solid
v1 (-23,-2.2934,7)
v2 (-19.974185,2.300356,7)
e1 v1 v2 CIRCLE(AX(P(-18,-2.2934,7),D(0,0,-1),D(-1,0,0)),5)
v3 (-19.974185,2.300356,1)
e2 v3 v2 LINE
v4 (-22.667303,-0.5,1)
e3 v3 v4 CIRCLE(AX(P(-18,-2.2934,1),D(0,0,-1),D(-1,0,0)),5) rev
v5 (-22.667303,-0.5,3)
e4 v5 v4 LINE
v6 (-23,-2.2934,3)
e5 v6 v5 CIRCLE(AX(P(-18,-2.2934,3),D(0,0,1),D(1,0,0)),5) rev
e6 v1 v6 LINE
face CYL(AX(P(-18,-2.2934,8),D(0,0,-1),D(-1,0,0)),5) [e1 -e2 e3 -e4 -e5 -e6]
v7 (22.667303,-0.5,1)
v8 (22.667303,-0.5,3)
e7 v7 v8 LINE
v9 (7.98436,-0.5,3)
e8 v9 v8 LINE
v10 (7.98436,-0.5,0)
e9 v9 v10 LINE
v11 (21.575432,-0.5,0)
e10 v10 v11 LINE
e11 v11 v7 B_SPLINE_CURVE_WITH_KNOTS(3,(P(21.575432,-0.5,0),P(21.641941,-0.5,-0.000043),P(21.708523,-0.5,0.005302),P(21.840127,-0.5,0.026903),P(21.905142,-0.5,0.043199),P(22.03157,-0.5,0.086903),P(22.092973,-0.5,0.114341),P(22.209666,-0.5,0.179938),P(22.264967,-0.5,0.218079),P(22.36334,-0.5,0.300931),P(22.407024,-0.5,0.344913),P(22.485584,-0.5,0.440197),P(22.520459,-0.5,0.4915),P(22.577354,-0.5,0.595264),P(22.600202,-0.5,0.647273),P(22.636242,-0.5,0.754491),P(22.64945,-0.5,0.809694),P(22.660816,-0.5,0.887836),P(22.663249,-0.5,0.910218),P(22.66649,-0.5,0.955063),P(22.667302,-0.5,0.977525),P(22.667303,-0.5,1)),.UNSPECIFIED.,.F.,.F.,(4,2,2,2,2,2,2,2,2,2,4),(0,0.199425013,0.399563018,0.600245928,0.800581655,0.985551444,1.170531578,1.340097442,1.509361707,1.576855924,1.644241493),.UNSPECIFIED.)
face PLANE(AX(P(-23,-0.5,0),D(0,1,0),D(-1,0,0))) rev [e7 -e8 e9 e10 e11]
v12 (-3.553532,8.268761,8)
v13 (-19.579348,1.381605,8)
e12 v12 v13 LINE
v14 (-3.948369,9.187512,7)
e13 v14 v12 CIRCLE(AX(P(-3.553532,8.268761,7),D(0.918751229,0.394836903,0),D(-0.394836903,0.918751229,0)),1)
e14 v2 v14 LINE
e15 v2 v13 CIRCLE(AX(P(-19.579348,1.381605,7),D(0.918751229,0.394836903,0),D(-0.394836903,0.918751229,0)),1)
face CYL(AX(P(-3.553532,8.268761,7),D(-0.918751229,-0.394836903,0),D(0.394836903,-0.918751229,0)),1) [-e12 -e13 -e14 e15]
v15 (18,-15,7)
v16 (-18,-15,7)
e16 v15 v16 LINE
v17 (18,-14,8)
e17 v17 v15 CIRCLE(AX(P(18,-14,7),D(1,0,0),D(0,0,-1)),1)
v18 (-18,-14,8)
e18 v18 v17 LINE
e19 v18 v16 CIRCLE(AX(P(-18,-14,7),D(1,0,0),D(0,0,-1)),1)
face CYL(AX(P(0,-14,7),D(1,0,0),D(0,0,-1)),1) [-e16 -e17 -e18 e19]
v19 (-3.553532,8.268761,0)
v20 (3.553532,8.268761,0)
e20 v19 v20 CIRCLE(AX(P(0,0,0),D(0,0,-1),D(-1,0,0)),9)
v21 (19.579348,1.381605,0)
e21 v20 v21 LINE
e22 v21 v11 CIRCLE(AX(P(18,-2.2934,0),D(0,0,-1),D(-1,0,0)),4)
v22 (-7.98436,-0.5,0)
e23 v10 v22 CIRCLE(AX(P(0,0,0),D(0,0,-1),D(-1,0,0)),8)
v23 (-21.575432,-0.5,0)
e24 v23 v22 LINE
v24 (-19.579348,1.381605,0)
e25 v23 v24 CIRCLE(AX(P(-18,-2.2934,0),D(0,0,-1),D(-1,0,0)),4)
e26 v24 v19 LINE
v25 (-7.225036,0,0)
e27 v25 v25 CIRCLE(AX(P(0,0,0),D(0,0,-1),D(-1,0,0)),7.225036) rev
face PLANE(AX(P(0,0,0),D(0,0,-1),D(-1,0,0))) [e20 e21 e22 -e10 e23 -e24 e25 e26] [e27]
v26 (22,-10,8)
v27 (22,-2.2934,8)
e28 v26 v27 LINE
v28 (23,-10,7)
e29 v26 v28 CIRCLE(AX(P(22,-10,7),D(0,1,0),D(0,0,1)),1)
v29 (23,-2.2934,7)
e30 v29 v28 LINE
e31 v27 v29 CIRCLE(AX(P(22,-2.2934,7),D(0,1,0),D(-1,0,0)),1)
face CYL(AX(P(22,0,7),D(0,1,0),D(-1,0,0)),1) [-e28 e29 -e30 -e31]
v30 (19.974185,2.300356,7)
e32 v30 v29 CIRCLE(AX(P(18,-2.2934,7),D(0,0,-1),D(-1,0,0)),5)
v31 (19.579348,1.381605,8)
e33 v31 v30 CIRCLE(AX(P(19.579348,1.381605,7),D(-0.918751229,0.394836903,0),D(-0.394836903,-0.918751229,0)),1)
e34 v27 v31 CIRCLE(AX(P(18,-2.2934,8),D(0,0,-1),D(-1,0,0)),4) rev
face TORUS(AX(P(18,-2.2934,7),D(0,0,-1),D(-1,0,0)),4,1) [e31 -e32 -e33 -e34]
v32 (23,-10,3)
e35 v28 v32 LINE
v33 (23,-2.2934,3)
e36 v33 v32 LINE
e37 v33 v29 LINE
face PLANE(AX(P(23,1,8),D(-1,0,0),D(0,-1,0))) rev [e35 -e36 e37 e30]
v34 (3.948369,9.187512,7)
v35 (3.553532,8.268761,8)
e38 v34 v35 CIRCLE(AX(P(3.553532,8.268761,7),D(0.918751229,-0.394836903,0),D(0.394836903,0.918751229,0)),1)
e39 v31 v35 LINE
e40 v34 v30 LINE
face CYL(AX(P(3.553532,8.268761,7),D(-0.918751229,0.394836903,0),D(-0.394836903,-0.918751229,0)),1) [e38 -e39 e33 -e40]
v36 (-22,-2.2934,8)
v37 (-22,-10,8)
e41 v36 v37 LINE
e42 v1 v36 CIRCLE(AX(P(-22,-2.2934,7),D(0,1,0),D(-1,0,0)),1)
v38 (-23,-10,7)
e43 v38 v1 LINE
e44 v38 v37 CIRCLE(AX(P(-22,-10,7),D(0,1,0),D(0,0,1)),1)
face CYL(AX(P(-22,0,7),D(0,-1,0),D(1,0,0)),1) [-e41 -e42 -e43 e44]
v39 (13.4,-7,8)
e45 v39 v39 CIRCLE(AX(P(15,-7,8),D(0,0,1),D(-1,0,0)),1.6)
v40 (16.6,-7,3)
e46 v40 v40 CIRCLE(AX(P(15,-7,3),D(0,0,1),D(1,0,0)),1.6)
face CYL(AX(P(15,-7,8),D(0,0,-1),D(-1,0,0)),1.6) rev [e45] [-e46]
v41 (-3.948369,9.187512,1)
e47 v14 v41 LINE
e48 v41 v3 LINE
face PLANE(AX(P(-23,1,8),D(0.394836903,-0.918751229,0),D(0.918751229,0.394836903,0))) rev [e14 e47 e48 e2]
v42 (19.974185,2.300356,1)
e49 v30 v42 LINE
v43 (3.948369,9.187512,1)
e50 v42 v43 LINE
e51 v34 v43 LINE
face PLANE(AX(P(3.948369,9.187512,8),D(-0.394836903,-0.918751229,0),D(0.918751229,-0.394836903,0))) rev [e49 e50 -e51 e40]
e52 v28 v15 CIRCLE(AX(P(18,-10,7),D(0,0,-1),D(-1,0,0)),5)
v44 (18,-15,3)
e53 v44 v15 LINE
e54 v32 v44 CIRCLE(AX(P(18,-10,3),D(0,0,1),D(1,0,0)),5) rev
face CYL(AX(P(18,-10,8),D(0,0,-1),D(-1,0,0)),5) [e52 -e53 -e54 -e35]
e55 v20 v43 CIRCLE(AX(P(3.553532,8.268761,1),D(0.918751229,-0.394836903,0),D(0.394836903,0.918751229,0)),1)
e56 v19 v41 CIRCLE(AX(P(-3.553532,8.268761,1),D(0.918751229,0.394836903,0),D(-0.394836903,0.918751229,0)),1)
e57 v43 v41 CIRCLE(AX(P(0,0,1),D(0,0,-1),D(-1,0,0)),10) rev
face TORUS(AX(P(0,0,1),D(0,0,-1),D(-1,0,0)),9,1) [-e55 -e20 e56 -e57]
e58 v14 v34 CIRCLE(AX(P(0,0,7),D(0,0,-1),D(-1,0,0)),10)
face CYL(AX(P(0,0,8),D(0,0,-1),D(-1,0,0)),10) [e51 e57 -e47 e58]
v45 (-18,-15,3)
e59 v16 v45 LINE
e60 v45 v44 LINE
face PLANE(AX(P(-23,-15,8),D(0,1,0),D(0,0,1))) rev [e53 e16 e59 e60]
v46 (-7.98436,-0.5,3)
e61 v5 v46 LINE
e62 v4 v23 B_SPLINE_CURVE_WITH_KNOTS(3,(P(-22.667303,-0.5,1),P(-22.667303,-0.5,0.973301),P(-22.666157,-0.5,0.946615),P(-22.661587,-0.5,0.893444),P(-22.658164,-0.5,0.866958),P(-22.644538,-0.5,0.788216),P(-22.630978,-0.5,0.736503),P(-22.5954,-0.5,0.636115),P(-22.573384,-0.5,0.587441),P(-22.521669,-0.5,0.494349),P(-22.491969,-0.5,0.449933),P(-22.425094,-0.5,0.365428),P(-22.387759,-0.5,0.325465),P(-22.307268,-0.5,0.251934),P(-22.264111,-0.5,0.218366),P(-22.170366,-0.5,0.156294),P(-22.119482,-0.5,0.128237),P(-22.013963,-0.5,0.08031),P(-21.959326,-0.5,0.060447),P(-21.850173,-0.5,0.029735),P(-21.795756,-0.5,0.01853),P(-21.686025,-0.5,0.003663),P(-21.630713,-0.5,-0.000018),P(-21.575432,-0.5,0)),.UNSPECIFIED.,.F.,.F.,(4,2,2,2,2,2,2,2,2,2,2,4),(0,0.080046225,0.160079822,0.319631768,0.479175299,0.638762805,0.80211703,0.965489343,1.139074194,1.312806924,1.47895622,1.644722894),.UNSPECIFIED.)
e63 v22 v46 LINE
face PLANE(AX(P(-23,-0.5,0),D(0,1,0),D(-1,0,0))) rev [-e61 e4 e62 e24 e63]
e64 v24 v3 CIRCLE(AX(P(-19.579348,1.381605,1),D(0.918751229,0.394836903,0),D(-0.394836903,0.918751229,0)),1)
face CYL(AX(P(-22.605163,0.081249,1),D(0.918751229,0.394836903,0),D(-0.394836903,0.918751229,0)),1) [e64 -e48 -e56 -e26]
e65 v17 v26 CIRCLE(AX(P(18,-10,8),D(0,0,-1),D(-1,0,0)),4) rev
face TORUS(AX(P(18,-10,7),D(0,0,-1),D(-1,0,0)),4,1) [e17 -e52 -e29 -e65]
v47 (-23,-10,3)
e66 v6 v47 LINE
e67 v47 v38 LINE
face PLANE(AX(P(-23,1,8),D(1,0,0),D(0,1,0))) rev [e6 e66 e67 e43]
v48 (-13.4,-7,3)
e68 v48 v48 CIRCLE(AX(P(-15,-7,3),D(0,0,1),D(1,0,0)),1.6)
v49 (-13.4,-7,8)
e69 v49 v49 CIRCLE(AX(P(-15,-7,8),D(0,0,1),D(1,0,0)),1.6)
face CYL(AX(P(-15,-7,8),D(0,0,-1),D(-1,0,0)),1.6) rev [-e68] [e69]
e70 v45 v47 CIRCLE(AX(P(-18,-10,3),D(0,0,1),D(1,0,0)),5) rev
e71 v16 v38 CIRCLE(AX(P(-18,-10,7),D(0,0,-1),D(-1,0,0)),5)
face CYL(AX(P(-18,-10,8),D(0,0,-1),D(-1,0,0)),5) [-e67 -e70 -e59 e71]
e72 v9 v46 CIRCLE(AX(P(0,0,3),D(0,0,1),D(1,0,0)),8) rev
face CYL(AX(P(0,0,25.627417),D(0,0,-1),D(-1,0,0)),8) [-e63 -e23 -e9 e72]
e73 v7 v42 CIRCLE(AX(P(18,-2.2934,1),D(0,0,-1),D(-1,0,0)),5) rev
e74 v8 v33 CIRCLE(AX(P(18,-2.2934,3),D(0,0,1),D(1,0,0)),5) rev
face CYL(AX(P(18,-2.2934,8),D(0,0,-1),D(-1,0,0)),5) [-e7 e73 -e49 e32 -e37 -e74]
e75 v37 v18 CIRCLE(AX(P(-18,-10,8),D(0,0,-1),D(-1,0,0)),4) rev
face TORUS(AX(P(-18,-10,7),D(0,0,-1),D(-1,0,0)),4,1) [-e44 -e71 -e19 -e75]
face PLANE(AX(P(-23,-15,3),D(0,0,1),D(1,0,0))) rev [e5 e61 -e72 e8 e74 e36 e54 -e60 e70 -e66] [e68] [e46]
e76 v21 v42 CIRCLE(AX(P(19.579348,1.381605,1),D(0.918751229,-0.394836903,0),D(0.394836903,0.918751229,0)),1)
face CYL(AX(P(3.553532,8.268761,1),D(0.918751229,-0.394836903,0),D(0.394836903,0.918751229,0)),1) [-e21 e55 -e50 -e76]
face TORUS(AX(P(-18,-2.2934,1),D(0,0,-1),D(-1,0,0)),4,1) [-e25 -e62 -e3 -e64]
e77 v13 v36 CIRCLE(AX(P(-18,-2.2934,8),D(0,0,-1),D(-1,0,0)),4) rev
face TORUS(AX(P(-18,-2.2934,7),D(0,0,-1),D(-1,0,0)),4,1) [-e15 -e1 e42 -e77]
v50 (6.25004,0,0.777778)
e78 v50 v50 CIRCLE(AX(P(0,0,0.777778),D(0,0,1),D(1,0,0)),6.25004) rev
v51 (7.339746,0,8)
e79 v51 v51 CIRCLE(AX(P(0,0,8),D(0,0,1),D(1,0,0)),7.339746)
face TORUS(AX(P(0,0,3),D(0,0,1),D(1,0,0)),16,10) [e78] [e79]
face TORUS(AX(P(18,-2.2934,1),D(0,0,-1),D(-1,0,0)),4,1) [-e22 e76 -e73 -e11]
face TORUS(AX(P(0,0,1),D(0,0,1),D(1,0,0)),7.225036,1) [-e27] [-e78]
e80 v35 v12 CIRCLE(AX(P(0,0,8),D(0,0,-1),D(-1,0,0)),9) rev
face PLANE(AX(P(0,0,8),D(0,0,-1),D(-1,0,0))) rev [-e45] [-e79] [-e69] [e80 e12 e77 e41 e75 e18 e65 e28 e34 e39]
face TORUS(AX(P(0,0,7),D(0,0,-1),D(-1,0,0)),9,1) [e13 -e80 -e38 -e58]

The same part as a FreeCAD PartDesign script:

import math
import FreeCAD as App
import Part
import Sketcher

V = App.Vector


def edges_at(feature, points):
    """Names of the edges that pass closest to the given points."""
    edges = feature.Shape.Edges
    near = lambda p: min(range(len(edges)), key=lambda i: edges[i].distToShape(Part.Vertex(*p))[0])
    return sorted({f"Edge{near(p) + 1}" for p in points})


def add_polygon(sketch, points):
    """Adds a closed chain of lines whose ends are joined by coincident constraints."""
    first, n = sketch.GeometryCount, len(points)
    for a, b in zip(points, points[1:] + points[:1]):
        sketch.addGeometry(Part.LineSegment(App.Vector(*a, 0), App.Vector(*b, 0)), False)
    for i in range(n):
        sketch.addConstraint(Sketcher.Constraint("Coincident", first + i, 2, first + (i + 1) % n, 1))

doc = App.newDocument("Part")
body = doc.addObject("PartDesign::Body", "Body")

sketch1 = body.newObject("Sketcher::SketchObject", "Sketch")
sketch1.AttachmentSupport = (doc.getObject("XY_Plane"), [""])
sketch1.MapMode = "FlatFace"
sketch1.addGeometry([
    Part.LineSegment(V(-3.9, 9.2, 0), V(-23, 1, 0)),
    Part.LineSegment(V(-23, 1, 0), V(-23, -15, 0)),
    Part.LineSegment(V(-23, -15, 0), V(23, -15, 0)),
    Part.LineSegment(V(23, -15, 0), V(23, 1, 0)),
    Part.LineSegment(V(23, 1, 0), V(3.9, 9.2, 0)),
    Part.ArcOfCircle(Part.Circle(V(0, 0, 0), V(0, 0, 1), 10), math.radians(67), math.radians(113)),
    Part.Circle(V(15, -7, 0), V(0, 0, 1), 1.6),
    Part.Circle(V(-15, -7, 0), V(0, 0, 1), 1.6),
], False)
sketch1.addConstraint([
    Sketcher.Constraint("Coincident", 0, 2, 1, 1),
    Sketcher.Constraint("Coincident", 1, 2, 2, 1),
    Sketcher.Constraint("Coincident", 2, 2, 3, 1),
    Sketcher.Constraint("Coincident", 3, 2, 4, 1),
    Sketcher.Constraint("Tangent", 4, 2, 5, 1),
    Sketcher.Constraint("Tangent", 5, 2, 0, 1),
    Sketcher.Constraint("Vertical", 1),
    Sketcher.Constraint("Horizontal", 2),
    Sketcher.Constraint("Vertical", 3),
    Sketcher.Constraint("Coincident", 5, 3, -1, 1),
    Sketcher.Constraint("Equal", 6, 7),
    Sketcher.Constraint("Symmetric", 6, 3, 7, 3, -2),
    Sketcher.Constraint("Symmetric", 0, 2, 3, 2, -2),
    Sketcher.Constraint("Radius", 5, 10.0),
    Sketcher.Constraint("Diameter", 6, 3.2),
    Sketcher.Constraint("DistanceX", 2, 1, 2, 2, 46.0),
    Sketcher.Constraint("DistanceY", 1, 2, 1, 1, 16.0),
    Sketcher.Constraint("DistanceX", -1, 1, 6, 3, 15.0),
    Sketcher.Constraint("DistanceY", 6, 3, -1, 1, 7.0),
    Sketcher.Constraint("DistanceY", -1, 1, 0, 2, 1.0),
])
pad1 = body.newObject("PartDesign::Pad", "Pad")
pad1.Profile = sketch1
pad1.Length = 8

sketch2 = body.newObject("Sketcher::SketchObject", "Sketch001")
sketch2.AttachmentSupport = (doc.getObject("YZ_Plane"), [""])
sketch2.MapMode = "FlatFace"
sketch2.AttachmentOffset = App.Placement(V(0, 0, 23), App.Rotation())
add_polygon(sketch2, [(-0.5, 3), (-15, 3), (-15, 0), (-0.5, 0)])
sketch2.addConstraint([
    Sketcher.Constraint("Horizontal", 0),
    Sketcher.Constraint("Vertical", 1),
    Sketcher.Constraint("Horizontal", 2),
    Sketcher.Constraint("Vertical", 3),
    Sketcher.Constraint("PointOnObject", 1, 2, -1),
    Sketcher.Constraint("DistanceY", 1, 2, 1, 1, 3.0),
    Sketcher.Constraint("DistanceX", 0, 2, 0, 1, 14.5),
    Sketcher.Constraint("DistanceX", 0, 2, -1, 1, 15.0),
])
pocket1 = body.newObject("PartDesign::Pocket", "Pocket")
pocket1.Profile = sketch2
pocket1.Type = "ThroughAll"

sketch3 = body.newObject("Sketcher::SketchObject", "Sketch002")
sketch3.AttachmentSupport = (doc.getObject("XY_Plane"), [""])
sketch3.MapMode = "FlatFace"
sketch3.addGeometry(Part.Circle(V(0, 0, 0), V(0, 0, 1), 8), False)
sketch3.addConstraint([
    Sketcher.Constraint("Coincident", 0, 3, -1, 1),
    Sketcher.Constraint("Diameter", 0, 16.0),
])
pad2 = body.newObject("PartDesign::Pad", "Pad001")
pad2.Profile = sketch3
pad2.Length = 3

sketch4 = body.newObject("Sketcher::SketchObject", "Sketch003")
sketch4.AttachmentSupport = (doc.getObject("YZ_Plane"), [""])
sketch4.MapMode = "FlatFace"
sketch4.addGeometry([
    Part.LineSegment(V(0, 8, 0), V(0, 0, 0)),
    Part.LineSegment(V(0, 0, 0), V(6, 0, 0)),
    Part.ArcOfCircle(Part.Circle(V(16, 3, 0), V(0, 0, 1), 10), math.radians(150), math.radians(197)),
    Part.LineSegment(V(7, 8, 0), V(0, 8, 0)),
], False)
sketch4.addConstraint([
    Sketcher.Constraint("Coincident", 0, 2, 1, 1),
    Sketcher.Constraint("Coincident", 1, 2, 2, 2),
    Sketcher.Constraint("Coincident", 2, 1, 3, 1),
    Sketcher.Constraint("Coincident", 3, 2, 0, 1),
    Sketcher.Constraint("Vertical", 0),
    Sketcher.Constraint("Horizontal", 1),
    Sketcher.Constraint("Horizontal", 3),
    Sketcher.Constraint("Coincident", 0, 2, -1, 1),
    Sketcher.Constraint("Radius", 2, 10.0),
    Sketcher.Constraint("DistanceY", 0, 2, 0, 1, 8.0),
    Sketcher.Constraint("DistanceX", -1, 1, 2, 3, 16.0),
    Sketcher.Constraint("DistanceY", -1, 1, 2, 3, 3.0),
])
groove = body.newObject("PartDesign::Groove", "Groove")
groove.Profile = sketch4
groove.ReferenceAxis = (sketch4, ["V_Axis"])
groove.Angle = 360
doc.recompute()

fillet = body.newObject("PartDesign::Fillet", "Fillet")
fillet.Base = (groove, edges_at(groove, [
    (-23, -15, 5.5),
    (-23, 1, 4),
    (23, -15, 5.5),
    (23, 1, 4),
]))
fillet.Radius = 5
doc.recompute()

fillet2 = body.newObject("PartDesign::Fillet", "Fillet001")
fillet2.Base = (fillet, edges_at(fillet, [
    (0, 10, 8),
    (-11.961, 5.744, 8),
    (-6.461, 0, 0),
    (-11.961, 5.744, 0),
    (0, -15, 8),
    (0, 10, 0),
    (-23, -6.147, 8),
    (23, -6.147, 8),
    (11.961, 5.744, 8),
    (22.176, 0.457, 8),
    (21.536, -13.536, 8),
    (-22.176, 0.457, 8),
    (-21.536, -13.536, 8),
    (11.961, 5.744, 0),
    (21.604, 1.172, 0),
    (-21.604, 1.172, 0),
]))
fillet2.Radius = 1

doc.recompute()
